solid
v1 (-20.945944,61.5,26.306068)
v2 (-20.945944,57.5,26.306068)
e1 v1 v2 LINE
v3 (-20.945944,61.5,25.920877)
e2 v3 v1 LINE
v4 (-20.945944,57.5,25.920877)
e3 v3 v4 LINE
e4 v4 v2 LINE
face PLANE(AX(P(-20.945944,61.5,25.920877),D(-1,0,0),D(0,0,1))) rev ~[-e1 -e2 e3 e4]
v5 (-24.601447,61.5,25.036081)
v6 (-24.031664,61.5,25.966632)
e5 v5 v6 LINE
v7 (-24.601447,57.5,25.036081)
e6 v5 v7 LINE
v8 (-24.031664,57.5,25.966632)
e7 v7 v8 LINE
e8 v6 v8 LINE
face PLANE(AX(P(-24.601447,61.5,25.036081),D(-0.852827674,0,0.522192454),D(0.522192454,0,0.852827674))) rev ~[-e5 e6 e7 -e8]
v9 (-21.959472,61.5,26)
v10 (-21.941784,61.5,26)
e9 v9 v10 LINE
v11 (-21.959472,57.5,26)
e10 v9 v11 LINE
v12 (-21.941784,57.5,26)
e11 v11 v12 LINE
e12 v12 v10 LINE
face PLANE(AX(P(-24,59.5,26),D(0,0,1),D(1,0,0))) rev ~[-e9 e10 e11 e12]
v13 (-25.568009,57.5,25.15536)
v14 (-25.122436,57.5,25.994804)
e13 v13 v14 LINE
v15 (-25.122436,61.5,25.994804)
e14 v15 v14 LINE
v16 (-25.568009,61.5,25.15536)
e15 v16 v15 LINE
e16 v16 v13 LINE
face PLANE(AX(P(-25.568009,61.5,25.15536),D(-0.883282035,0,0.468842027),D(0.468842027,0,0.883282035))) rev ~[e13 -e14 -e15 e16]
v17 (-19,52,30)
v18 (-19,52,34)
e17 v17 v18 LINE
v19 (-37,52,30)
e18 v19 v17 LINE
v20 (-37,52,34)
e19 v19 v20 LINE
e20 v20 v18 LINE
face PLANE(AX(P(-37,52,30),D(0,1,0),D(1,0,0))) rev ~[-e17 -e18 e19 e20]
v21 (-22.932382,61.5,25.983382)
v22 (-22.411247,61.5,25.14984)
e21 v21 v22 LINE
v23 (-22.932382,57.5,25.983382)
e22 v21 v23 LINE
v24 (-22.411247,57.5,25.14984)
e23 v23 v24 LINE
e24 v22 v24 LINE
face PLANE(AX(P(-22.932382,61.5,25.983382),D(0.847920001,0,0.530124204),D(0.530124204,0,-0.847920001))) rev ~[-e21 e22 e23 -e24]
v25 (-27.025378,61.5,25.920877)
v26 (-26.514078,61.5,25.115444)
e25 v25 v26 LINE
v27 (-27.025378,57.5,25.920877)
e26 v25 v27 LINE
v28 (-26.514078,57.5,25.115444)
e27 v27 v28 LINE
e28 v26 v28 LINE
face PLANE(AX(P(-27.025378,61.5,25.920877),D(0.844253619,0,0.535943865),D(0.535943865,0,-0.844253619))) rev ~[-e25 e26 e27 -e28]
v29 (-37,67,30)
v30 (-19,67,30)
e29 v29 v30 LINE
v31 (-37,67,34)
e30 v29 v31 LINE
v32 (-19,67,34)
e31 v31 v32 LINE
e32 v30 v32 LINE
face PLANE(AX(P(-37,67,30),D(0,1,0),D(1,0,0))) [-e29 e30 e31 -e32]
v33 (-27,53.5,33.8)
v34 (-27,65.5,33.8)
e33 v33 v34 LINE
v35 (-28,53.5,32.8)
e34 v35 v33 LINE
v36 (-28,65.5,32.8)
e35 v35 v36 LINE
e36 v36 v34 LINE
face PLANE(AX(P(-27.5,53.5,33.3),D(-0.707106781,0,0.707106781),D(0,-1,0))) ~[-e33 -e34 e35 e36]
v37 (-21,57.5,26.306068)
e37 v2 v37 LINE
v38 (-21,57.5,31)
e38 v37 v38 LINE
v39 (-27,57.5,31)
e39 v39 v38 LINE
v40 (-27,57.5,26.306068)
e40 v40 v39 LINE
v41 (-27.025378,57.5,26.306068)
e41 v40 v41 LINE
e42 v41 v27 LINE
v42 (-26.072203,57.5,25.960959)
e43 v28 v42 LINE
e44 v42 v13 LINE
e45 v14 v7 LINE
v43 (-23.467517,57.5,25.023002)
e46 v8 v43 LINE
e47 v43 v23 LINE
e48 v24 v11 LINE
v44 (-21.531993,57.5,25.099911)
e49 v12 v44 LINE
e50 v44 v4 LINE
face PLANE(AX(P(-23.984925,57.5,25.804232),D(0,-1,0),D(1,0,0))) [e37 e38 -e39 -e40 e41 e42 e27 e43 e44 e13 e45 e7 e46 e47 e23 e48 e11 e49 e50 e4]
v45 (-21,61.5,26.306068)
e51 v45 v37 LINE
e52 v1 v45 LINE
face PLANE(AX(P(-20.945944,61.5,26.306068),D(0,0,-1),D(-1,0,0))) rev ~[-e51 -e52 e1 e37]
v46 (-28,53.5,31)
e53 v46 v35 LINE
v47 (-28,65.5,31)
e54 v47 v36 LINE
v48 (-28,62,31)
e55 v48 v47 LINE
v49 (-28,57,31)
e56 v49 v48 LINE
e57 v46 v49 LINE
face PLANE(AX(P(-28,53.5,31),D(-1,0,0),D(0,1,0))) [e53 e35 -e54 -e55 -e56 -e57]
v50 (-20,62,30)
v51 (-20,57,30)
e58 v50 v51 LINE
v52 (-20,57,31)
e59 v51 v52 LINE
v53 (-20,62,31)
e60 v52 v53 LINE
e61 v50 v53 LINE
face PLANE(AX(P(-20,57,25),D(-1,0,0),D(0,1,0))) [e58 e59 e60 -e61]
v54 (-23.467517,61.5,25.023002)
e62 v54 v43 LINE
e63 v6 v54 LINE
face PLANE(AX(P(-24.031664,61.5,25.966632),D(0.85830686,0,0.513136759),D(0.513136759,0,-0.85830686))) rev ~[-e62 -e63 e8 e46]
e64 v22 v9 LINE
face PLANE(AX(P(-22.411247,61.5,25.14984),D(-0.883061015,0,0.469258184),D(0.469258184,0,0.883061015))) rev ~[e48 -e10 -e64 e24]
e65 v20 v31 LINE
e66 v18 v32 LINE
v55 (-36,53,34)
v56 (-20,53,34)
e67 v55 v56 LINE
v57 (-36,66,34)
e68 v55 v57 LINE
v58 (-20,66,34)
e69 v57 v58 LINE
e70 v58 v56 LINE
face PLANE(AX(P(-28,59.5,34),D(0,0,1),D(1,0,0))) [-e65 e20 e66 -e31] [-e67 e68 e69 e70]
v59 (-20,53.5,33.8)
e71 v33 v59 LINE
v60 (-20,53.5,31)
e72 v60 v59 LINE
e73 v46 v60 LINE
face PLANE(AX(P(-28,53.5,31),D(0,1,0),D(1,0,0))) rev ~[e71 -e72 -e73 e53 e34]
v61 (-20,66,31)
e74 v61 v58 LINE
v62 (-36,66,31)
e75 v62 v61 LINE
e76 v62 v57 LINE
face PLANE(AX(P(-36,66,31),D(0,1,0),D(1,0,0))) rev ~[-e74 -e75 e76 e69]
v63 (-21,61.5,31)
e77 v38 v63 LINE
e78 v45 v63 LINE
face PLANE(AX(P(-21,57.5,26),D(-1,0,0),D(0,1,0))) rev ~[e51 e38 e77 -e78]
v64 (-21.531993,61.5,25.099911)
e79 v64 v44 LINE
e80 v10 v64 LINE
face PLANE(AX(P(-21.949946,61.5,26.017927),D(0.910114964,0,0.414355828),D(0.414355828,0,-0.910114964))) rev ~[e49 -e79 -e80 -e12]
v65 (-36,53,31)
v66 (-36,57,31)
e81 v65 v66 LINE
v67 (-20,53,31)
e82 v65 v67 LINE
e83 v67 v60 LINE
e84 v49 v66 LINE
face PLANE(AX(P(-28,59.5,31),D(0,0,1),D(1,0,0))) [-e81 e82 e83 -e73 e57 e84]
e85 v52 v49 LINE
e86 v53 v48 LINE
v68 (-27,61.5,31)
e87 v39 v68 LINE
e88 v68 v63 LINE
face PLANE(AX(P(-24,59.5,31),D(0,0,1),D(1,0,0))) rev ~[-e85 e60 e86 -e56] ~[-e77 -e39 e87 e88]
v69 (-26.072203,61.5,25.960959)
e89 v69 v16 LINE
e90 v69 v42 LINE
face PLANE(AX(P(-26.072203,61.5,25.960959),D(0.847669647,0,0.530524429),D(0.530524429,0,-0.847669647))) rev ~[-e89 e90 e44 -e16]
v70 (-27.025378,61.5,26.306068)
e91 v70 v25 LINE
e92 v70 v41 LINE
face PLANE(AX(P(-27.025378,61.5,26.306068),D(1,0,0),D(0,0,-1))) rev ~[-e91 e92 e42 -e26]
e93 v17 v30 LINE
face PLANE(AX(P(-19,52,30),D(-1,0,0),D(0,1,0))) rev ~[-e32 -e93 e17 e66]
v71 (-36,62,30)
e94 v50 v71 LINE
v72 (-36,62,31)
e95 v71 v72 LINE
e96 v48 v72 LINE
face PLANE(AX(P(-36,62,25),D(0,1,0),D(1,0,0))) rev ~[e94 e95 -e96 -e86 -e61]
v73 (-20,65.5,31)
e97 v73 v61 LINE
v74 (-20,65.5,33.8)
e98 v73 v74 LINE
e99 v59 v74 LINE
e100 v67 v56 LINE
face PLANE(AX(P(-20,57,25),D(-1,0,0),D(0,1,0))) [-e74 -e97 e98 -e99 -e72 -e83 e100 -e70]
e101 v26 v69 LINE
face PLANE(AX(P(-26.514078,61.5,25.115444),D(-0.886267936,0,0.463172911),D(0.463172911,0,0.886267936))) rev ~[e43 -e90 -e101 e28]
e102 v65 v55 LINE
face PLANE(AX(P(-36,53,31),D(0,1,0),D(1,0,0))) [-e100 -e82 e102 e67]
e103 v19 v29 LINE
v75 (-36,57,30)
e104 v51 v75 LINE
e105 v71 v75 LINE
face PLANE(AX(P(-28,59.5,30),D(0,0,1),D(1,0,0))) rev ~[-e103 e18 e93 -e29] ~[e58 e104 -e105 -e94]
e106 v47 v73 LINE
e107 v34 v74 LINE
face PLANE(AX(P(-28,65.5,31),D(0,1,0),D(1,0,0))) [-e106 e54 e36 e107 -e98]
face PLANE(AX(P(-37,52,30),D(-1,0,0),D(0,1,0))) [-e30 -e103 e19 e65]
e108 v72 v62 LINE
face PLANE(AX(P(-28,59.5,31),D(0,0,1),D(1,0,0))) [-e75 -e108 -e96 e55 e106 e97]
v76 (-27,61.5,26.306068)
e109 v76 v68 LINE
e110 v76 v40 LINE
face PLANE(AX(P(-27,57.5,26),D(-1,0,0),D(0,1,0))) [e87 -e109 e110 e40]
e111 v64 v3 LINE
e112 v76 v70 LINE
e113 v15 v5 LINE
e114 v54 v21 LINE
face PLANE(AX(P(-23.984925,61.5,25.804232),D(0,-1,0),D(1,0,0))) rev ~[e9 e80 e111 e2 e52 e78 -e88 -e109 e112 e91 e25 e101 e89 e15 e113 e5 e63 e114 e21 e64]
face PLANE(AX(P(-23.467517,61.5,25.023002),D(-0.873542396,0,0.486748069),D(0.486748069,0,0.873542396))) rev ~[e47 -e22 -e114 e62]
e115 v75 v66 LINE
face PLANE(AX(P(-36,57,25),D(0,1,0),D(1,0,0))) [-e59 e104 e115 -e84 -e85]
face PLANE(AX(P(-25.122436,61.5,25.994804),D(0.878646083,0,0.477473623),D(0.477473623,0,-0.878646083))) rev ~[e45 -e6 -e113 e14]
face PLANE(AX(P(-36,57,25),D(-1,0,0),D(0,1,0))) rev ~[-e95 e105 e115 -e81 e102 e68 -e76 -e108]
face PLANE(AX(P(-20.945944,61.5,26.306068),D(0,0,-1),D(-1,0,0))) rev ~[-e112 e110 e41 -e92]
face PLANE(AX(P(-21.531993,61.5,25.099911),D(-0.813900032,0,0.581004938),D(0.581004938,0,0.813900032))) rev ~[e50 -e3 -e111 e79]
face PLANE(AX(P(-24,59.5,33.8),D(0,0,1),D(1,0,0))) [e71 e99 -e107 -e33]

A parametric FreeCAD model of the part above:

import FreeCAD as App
import Part
import Sketcher


def edges_at(feature, points):
    """Names of the edges that pass closest to the given points."""
    edges = feature.Shape.Edges
    near = lambda p: min(range(len(edges)), key=lambda i: edges[i].distToShape(Part.Vertex(*p))[0])
    return sorted({f"Edge{near(p) + 1}" for p in points})


def add_polygon(sketch, points):
    """Adds a closed chain of lines whose ends are joined by coincident constraints."""
    first, n = sketch.GeometryCount, len(points)
    for a, b in zip(points, points[1:] + points[:1]):
        sketch.addGeometry(Part.LineSegment(App.Vector(*a, 0), App.Vector(*b, 0)), False)
    for i in range(n):
        sketch.addConstraint(Sketcher.Constraint("Coincident", first + i, 2, first + (i + 1) % n, 1))

doc = App.newDocument("Part")
params = doc.addObject("Spreadsheet::Sheet", "Params")
for row, (alias, value) in enumerate([
    ("pad1_length", "4 mm"),
    ("sketch2_width", "6 mm"),
    ("sketch2_height", "4 mm"),
    ("pad2_length", "5 mm"),
    ("sketch3_width", "16 mm"),
    ("sketch3_height", "5 mm"),
    ("pad3_length", "10 mm"),
    ("sketch4_width", "16 mm"),
    ("sketch4_height", "13 mm"),
    ("pad4_length", "3 mm"),
    ("sketch5_width", "18 mm"),
    ("sketch5_height", "15 mm"),
    ("pad5_length", "4 mm"),
    ("sketch6_width", "8 mm"),
    ("sketch6_height", "12 mm"),
    ("pad6_length", "2.8 mm"),
    ("chamfer_size", "1 mm"),
], start=1):
    params.set(f"A{row}", alias)
    params.set(f"B{row}", "=" + value)
    params.setAlias(f"B{row}", alias)

body = doc.addObject("PartDesign::Body", "Body")

sketch1 = body.newObject("Sketcher::SketchObject", "Sketch")
sketch1.AttachmentSupport = (doc.getObject("XZ_Plane"), [""])
sketch1.MapMode = "FlatFace"
add_polygon(sketch1, [(1.974622, -4.079123), (2.485922, -4.884556), (2.927797, -4.039041), (3.431991, -4.84464), (3.877564, -4.005196), (4.398553, -4.963919), (4.968336, -4.033368), (5.532483, -4.976998), (6.067618, -4.016618), (6.588753, -4.85016), (7.050054, -3.982073), (7.468007, -4.900089), (8.054056, -4.079123), (8.054056, -3.693932), (1.974622, -3.693932)])
sketch1.addConstraint([
    Sketcher.Constraint("Vertical", 12),
    Sketcher.Constraint("Horizontal", 13),
    Sketcher.Constraint("Vertical", 14),
    Sketcher.Constraint("DistanceX", 9, 2, 11, 2, 1.004002),
    Sketcher.Constraint("DistanceY", 12, 1, 12, 2, 0.385191),
    Sketcher.Constraint("DistanceY", 14, 2, 14, 1, 0.385191),
    Sketcher.Constraint("DistanceY", 2, 2, 1, 2, 0.805599),
    Sketcher.Constraint("DistanceY", 4, 2, 7, 2, 0.947301),
    Sketcher.Constraint("DistanceX", 4, 2, 8, 2, 2.1902),
    Sketcher.Constraint("DistanceX", 8, 2, 9, 2, 0.461301),
    Sketcher.Constraint("DistanceX", 13, 2, 0, 2, 0.5113),
    Sketcher.Constraint("Distance", 2, 0.950369),
    Sketcher.Constraint("Distance", 3, 0.950369),
    Sketcher.Constraint("Distance", 6, 1.099409),
    Sketcher.Constraint("Distance", 7, 1.099409),
    Sketcher.Constraint("Distance", 10, 1.008681),
    Sketcher.Constraint("Distance", 11, 1.008682),
    Sketcher.Constraint("DistanceX", 13, 2, 13, 1, 6.079434),
    Sketcher.Constraint("DistanceX", -1, 1, 0, 2, 2.485922),
    Sketcher.Constraint("DistanceY", 1, 2, -1, 1, 4.039041),
    Sketcher.Constraint("DistanceX", -1, 1, 2, 2, 3.431991),
    Sketcher.Constraint("DistanceY", 4, 2, -1, 1, 4.963919),
    Sketcher.Constraint("DistanceY", 5, 2, -1, 1, 4.033368),
    Sketcher.Constraint("DistanceX", -1, 1, 7, 2, 6.067618),
    Sketcher.Constraint("DistanceY", 8, 2, -1, 1, 4.85016),
    Sketcher.Constraint("DistanceY", 10, 2, -1, 1, 4.900089),
    Sketcher.Constraint("DistanceY", 0, 2, 3, 2, 0.87936),
    Sketcher.Constraint("DistanceX", 3, 2, 4, 2, 0.520989),
    Sketcher.Constraint("DistanceX", 3, 2, 5, 2, 1.090772),
    Sketcher.Constraint("DistanceX", 7, 2, 10, 2, 1.400389),
])
pad1 = body.newObject("PartDesign::Pad", "Pad")
pad1.Profile = sketch1
pad1.setExpression("Length", "Params.pad1_length")
body2 = doc.addObject("PartDesign::Body", "Body001")

sketch2 = body2.newObject("Sketcher::SketchObject", "Sketch001")
sketch2.AttachmentSupport = (doc.getObject("XY_Plane001"), [""])
sketch2.MapMode = "FlatFace"
sketch2.AttachmentOffset = App.Placement(App.Vector(0, 0, -4), App.Rotation())
add_polygon(sketch2, [(2, 0), (2, -4), (8, -4), (8, 0)])
sketch2.addConstraint([
    Sketcher.Constraint("Vertical", 0),
    Sketcher.Constraint("Horizontal", 1),
    Sketcher.Constraint("Vertical", 2),
    Sketcher.Constraint("Horizontal", 3),
    Sketcher.Constraint("PointOnObject", 2, 2, -1),
    Sketcher.Constraint("DistanceX", 1, 1, 1, 2, 6.0),
    Sketcher.Constraint("DistanceY", 0, 2, 0, 1, 4.0),
    Sketcher.Constraint("DistanceX", -1, 1, 0, 2, 2.0),
])
sketch2.setExpression("Constraints[9]", "Params.sketch2_width")
sketch2.setExpression("Constraints[10]", "Params.sketch2_height")
pad2 = body2.newObject("PartDesign::Pad", "Pad001")
pad2.Profile = sketch2
pad2.setExpression("Length", "Params.pad2_length")
doc.recompute()

boolean = body2.newObject("PartDesign::Boolean", "Boolean")
boolean.Type = "Fuse"
boolean.addObjects([body])
body3 = doc.addObject("PartDesign::Body", "Body002")
doc.recompute()

body2.Placement = App.Placement(App.Vector(8, 9.5, 0), App.Rotation(App.Vector(0, 0, 1), 0))
boolean2 = body3.newObject("PartDesign::Boolean", "Boolean001")
boolean2.Type = "Fuse"
boolean2.addObjects([body2])
body4 = doc.addObject("PartDesign::Body", "Body003")

sketch3 = body4.newObject("Sketcher::SketchObject", "Sketch002")
sketch3.AttachmentSupport = (doc.getObject("XY_Plane003"), [""])
sketch3.MapMode = "FlatFace"
sketch3.AttachmentOffset = App.Placement(App.Vector(0, 0, -5), App.Rotation())
add_polygon(sketch3, [(1, 10), (1, 5), (17, 5), (17, 10)])
sketch3.addConstraint([
    Sketcher.Constraint("Vertical", 0),
    Sketcher.Constraint("Horizontal", 1),
    Sketcher.Constraint("Vertical", 2),
    Sketcher.Constraint("Horizontal", 3),
    Sketcher.Constraint("DistanceX", 1, 1, 1, 2, 16.0),
    Sketcher.Constraint("DistanceY", 0, 2, 0, 1, 5.0),
    Sketcher.Constraint("DistanceX", -1, 1, 0, 2, 1.0),
    Sketcher.Constraint("DistanceY", -1, 1, 0, 2, 5.0),
])
sketch3.setExpression("Constraints[8]", "Params.sketch3_width")
sketch3.setExpression("Constraints[9]", "Params.sketch3_height")
pad3 = body4.newObject("PartDesign::Pad", "Pad002")
pad3.Profile = sketch3
pad3.setExpression("Length", "Params.pad3_length")
body5 = doc.addObject("PartDesign::Body", "Body004")

sketch4 = body5.newObject("Sketcher::SketchObject", "Sketch003")
sketch4.AttachmentSupport = (doc.getObject("XY_Plane004"), [""])
sketch4.MapMode = "FlatFace"
sketch4.AttachmentOffset = App.Placement(App.Vector(0, 0, 1), App.Rotation())
add_polygon(sketch4, [(1, 14), (1, 1), (17, 1), (17, 14)])
sketch4.addConstraint([
    Sketcher.Constraint("Vertical", 0),
    Sketcher.Constraint("Horizontal", 1),
    Sketcher.Constraint("Vertical", 2),
    Sketcher.Constraint("Horizontal", 3),
    Sketcher.Constraint("DistanceX", 1, 1, 1, 2, 16.0),
    Sketcher.Constraint("DistanceY", 0, 2, 0, 1, 13.0),
    Sketcher.Constraint("DistanceX", -1, 1, 0, 2, 1.0),
    Sketcher.Constraint("DistanceY", -1, 1, 0, 2, 1.0),
])
sketch4.setExpression("Constraints[8]", "Params.sketch4_width")
sketch4.setExpression("Constraints[9]", "Params.sketch4_height")
pad4 = body5.newObject("PartDesign::Pad", "Pad003")
pad4.Profile = sketch4
pad4.setExpression("Length", "Params.pad4_length")
body6 = doc.addObject("PartDesign::Body", "Body005")

sketch5 = body6.newObject("Sketcher::SketchObject", "Sketch004")
sketch5.AttachmentSupport = (doc.getObject("XY_Plane005"), [""])
sketch5.MapMode = "FlatFace"
add_polygon(sketch5, [(0, 15), (0, 0), (18, 0), (18, 15)])
sketch5.addConstraint([
    Sketcher.Constraint("Vertical", 0),
    Sketcher.Constraint("Horizontal", 1),
    Sketcher.Constraint("Vertical", 2),
    Sketcher.Constraint("Horizontal", 3),
    Sketcher.Constraint("Coincident", 0, 2, -1, 1),
    Sketcher.Constraint("DistanceX", 1, 1, 1, 2, 18.0),
    Sketcher.Constraint("DistanceY", 0, 2, 0, 1, 15.0),
])
sketch5.setExpression("Constraints[9]", "Params.sketch5_width")
sketch5.setExpression("Constraints[10]", "Params.sketch5_height")
pad5 = body6.newObject("PartDesign::Pad", "Pad004")
pad5.Profile = sketch5
pad5.setExpression("Length", "Params.pad5_length")
doc.recompute()

boolean3 = body6.newObject("PartDesign::Boolean", "Boolean002")
boolean3.Type = "Cut"
boolean3.addObjects([body5])
doc.recompute()

boolean4 = body6.newObject("PartDesign::Boolean", "Boolean003")
boolean4.Type = "Cut"
boolean4.addObjects([body4])
body7 = doc.addObject("PartDesign::Body", "Body006")

sketch6 = body7.newObject("Sketcher::SketchObject", "Sketch005")
sketch6.AttachmentSupport = (doc.getObject("XY_Plane006"), [""])
sketch6.MapMode = "FlatFace"
sketch6.AttachmentOffset = App.Placement(App.Vector(0, 0, 1), App.Rotation())
add_polygon(sketch6, [(8, 14), (8, 2), (16, 2), (16, 14)])
sketch6.addConstraint([
    Sketcher.Constraint("Vertical", 0),
    Sketcher.Constraint("Horizontal", 1),
    Sketcher.Constraint("Vertical", 2),
    Sketcher.Constraint("Horizontal", 3),
    Sketcher.Constraint("DistanceX", 1, 1, 1, 2, 8.0),
    Sketcher.Constraint("DistanceY", 0, 2, 0, 1, 12.0),
    Sketcher.Constraint("DistanceX", -1, 1, 0, 2, 8.0),
    Sketcher.Constraint("DistanceY", -1, 1, 0, 2, 1.5),
])
sketch6.setExpression("Constraints[8]", "Params.sketch6_width")
sketch6.setExpression("Constraints[9]", "Params.sketch6_height")
pad6 = body7.newObject("PartDesign::Pad", "Pad005")
pad6.Profile = sketch6
pad6.setExpression("Length", "Params.pad6_length")
doc.recompute()

chamfer = body7.newObject("PartDesign::Chamfer", "Chamfer")
chamfer.Base = (pad6, edges_at(pad6, [(8, 7.5, 3.8)]))
chamfer.setExpression("Size", "Params.chamfer_size")
body8 = doc.addObject("PartDesign::Body", "Body007")
doc.recompute()

body7.Placement = App.Placement(App.Vector(1, 0, 0), App.Rotation(App.Vector(0, 0, 1), 0))
boolean5 = body8.newObject("PartDesign::Boolean", "Boolean004")
boolean5.Type = "Fuse"
boolean5.addObjects([body7])
doc.recompute()

boolean6 = body8.newObject("PartDesign::Boolean", "Boolean005")
boolean6.Type = "Fuse"
boolean6.addObjects([body3])
doc.recompute()

boolean7 = body8.newObject("PartDesign::Boolean", "Boolean006")
boolean7.Type = "Fuse"
boolean7.addObjects([body6])
body9 = doc.addObject("PartDesign::Body", "Body008")
doc.recompute()

body8.Placement = App.Placement(App.Vector(-37, 52, 30), App.Rotation(App.Vector(0, 0, 1), 0))
boolean8 = body9.newObject("PartDesign::Boolean", "Boolean007")
boolean8.Type = "Fuse"
boolean8.addObjects([body8])

doc.recompute()
